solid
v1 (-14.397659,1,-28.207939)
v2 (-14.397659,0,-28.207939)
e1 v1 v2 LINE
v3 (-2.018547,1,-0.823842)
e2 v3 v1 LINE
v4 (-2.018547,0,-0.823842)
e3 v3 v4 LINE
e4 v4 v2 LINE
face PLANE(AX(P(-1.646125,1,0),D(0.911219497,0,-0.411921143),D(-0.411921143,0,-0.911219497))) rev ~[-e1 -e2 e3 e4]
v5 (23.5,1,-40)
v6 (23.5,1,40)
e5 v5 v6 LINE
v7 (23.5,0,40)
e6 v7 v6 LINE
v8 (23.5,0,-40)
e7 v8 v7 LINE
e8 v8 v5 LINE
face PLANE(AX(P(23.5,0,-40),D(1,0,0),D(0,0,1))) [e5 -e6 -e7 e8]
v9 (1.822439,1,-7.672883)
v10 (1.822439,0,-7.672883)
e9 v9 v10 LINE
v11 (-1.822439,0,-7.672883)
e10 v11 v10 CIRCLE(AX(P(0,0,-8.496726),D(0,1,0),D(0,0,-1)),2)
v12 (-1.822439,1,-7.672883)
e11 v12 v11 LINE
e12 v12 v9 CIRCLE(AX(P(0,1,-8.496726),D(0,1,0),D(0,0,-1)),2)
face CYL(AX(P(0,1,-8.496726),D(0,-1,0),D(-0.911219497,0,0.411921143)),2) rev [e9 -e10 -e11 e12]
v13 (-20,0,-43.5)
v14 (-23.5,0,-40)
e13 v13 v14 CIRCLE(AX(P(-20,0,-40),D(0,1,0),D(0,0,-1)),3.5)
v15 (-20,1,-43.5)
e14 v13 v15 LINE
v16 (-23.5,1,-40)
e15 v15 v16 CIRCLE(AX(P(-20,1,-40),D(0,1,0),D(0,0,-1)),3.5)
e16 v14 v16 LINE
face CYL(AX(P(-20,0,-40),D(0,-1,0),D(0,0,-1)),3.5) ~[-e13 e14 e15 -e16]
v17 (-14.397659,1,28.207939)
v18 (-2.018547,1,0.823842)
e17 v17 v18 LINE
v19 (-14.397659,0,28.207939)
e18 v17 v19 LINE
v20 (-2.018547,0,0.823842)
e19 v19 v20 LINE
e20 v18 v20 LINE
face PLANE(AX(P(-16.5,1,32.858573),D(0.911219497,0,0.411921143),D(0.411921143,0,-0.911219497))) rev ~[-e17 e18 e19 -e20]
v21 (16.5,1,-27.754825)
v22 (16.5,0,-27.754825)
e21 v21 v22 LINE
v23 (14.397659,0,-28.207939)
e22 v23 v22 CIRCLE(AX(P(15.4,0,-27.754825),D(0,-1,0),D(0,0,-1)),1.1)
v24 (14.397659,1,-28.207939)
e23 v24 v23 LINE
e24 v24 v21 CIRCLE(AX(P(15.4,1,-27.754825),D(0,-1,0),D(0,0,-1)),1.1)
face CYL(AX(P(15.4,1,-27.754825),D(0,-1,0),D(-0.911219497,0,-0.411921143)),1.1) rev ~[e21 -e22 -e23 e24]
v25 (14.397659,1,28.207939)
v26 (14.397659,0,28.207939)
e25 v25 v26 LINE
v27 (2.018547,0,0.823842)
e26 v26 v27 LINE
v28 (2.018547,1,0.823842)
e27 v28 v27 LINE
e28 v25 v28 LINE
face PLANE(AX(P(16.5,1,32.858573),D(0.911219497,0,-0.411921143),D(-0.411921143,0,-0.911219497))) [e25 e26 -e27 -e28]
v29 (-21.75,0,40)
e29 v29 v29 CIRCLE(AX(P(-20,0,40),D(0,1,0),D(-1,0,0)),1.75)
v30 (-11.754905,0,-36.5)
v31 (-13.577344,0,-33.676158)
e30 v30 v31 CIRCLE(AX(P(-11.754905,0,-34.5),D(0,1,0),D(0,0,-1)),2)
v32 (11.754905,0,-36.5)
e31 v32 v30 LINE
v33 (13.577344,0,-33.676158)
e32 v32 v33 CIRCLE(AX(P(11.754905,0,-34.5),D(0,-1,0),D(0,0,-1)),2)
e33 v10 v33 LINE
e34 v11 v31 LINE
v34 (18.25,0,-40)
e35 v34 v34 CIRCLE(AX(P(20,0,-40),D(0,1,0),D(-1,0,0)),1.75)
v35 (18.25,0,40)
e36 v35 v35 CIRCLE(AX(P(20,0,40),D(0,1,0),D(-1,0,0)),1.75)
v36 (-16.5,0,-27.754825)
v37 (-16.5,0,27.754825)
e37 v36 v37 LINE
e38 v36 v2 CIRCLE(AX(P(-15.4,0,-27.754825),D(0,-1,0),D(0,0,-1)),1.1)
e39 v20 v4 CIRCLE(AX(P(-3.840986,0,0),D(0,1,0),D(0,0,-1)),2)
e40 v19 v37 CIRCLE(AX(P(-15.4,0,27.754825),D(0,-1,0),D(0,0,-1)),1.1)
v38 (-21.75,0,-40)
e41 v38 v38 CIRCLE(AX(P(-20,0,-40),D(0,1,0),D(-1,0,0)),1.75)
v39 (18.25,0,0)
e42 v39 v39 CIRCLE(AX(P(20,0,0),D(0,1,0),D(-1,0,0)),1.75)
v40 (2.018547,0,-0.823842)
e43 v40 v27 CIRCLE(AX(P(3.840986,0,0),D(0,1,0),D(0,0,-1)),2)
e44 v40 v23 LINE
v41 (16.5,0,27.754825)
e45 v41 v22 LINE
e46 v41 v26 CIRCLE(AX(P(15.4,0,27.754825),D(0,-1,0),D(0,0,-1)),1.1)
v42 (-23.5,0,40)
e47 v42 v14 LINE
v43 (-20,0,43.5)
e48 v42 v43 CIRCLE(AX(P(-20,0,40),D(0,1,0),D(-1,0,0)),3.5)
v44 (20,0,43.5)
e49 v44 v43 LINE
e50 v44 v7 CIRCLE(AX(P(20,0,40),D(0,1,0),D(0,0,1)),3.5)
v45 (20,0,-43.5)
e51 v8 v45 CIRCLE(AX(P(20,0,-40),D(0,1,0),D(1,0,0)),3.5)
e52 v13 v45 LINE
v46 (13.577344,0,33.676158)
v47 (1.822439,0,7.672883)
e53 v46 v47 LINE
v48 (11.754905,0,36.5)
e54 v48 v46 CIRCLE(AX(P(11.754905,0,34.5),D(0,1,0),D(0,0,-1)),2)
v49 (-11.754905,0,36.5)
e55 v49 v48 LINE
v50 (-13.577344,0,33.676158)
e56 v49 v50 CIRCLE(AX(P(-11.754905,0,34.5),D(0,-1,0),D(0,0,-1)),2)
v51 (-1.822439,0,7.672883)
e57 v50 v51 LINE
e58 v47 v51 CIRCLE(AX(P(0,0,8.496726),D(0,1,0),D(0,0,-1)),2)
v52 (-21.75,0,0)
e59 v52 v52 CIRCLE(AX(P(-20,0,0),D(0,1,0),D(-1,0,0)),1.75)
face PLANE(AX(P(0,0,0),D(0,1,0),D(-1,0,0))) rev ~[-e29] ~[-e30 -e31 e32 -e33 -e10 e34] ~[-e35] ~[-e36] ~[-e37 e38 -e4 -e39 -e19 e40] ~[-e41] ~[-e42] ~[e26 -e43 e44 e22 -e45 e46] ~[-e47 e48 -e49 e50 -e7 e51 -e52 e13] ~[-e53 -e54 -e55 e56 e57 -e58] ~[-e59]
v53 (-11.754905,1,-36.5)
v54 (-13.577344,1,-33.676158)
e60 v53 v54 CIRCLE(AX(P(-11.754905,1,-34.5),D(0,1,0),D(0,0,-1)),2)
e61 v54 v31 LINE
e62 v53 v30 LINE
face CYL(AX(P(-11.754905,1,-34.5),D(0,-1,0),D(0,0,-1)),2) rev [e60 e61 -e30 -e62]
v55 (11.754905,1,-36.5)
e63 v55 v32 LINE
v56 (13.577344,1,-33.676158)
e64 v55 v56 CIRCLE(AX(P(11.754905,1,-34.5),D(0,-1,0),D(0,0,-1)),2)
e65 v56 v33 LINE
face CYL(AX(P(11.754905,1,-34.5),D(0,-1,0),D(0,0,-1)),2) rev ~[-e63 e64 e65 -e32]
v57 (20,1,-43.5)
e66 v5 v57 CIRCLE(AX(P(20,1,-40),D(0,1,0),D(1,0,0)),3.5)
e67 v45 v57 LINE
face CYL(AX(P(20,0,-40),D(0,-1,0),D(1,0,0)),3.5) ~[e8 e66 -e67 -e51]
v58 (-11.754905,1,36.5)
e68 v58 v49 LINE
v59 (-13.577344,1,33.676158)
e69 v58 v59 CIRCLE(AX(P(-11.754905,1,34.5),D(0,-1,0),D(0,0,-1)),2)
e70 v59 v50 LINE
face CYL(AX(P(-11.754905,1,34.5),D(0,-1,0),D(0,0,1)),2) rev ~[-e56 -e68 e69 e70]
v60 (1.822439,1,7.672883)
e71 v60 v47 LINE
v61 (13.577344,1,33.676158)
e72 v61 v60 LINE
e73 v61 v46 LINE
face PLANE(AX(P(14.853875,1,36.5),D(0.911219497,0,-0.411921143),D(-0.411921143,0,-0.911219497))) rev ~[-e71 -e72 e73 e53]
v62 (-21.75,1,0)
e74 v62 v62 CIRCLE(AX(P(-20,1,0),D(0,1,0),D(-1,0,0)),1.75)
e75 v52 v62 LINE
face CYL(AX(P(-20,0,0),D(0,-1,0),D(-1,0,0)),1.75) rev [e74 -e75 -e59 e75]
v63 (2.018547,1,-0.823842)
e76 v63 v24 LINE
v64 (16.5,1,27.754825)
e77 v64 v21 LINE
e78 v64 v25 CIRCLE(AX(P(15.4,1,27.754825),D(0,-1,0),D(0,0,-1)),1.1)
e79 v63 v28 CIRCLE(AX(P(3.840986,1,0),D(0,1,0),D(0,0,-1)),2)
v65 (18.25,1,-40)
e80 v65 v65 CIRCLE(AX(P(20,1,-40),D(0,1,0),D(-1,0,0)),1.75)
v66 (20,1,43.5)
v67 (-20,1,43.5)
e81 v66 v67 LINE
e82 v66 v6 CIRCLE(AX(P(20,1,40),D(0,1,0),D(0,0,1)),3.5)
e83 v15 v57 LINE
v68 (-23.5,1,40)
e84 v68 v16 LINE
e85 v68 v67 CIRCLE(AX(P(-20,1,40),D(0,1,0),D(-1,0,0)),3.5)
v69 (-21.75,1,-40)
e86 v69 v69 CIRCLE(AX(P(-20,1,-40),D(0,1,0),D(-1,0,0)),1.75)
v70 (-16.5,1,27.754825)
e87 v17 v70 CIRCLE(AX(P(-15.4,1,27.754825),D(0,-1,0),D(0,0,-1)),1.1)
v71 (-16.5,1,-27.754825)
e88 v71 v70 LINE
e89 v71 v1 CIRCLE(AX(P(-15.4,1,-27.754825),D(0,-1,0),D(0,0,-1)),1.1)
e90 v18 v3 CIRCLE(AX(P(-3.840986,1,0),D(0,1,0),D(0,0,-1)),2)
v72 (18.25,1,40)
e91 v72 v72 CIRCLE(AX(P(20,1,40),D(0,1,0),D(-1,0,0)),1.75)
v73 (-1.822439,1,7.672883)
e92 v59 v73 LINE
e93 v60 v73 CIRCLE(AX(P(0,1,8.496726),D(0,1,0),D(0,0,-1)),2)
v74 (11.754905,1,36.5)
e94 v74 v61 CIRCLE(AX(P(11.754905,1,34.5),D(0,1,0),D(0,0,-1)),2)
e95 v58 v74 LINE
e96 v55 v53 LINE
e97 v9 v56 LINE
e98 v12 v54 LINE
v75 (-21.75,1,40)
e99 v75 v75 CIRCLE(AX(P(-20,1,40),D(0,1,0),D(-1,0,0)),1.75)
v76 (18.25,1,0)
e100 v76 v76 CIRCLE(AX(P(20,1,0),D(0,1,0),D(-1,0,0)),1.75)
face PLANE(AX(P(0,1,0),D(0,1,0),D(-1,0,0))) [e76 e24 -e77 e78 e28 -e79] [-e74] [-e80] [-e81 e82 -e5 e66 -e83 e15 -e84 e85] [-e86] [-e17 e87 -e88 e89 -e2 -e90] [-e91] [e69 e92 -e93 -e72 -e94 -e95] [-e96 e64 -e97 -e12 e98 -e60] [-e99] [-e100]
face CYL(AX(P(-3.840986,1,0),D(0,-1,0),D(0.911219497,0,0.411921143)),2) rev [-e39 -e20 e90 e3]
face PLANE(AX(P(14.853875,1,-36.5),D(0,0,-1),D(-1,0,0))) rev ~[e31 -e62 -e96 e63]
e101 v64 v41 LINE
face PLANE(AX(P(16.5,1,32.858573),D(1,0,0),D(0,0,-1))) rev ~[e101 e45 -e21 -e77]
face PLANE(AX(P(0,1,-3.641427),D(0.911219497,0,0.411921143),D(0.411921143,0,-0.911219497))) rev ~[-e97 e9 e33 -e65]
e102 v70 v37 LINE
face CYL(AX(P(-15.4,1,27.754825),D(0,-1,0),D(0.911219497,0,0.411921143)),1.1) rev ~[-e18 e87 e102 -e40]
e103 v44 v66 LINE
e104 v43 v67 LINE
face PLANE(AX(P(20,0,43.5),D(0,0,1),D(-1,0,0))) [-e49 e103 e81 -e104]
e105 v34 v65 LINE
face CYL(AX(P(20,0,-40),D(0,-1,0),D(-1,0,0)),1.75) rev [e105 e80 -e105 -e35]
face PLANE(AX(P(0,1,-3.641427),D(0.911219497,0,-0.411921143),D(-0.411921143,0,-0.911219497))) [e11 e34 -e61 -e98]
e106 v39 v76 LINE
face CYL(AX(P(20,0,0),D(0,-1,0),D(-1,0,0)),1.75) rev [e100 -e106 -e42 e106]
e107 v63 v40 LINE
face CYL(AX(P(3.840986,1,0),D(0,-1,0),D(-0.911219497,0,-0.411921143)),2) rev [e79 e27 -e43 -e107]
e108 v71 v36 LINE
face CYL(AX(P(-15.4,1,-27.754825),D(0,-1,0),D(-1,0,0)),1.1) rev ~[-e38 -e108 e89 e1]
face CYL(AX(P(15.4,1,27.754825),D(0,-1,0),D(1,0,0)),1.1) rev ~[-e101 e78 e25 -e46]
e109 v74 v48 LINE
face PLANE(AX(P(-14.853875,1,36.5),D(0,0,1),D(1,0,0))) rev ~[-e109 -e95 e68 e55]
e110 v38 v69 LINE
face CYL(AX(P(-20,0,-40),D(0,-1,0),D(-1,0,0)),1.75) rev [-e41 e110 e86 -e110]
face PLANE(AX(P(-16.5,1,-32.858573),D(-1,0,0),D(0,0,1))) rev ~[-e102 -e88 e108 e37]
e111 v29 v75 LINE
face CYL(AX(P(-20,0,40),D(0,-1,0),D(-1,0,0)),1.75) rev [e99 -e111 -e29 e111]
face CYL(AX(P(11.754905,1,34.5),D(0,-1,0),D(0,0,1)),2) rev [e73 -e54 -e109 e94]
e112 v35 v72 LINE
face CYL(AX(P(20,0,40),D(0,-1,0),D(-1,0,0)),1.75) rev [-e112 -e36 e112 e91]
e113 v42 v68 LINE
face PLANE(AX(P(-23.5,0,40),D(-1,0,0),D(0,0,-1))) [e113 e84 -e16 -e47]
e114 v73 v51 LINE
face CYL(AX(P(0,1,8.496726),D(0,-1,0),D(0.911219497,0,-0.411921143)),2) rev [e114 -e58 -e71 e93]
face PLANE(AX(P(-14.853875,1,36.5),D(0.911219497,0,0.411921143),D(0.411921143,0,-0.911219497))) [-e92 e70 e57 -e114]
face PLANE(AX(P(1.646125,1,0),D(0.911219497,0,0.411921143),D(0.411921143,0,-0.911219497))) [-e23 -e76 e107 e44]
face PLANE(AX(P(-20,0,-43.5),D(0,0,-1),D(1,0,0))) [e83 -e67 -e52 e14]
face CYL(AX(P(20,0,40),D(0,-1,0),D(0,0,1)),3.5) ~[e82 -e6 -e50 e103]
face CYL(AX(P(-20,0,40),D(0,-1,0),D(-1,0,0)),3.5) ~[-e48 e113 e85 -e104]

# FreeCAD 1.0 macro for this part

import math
import FreeCAD as App
import Part
import Sketcher
Q = App.Units.Quantity


def edges_at(feature, points):
    """Names of the edges that pass closest to the given points."""
    edges = feature.Shape.Edges
    near = lambda p: min(range(len(edges)), key=lambda i: edges[i].distToShape(Part.Vertex(*p))[0])
    return sorted({f"Edge{near(p) + 1}" for p in points})


def add_polygon(sketch, points):
    """Adds a closed chain of lines whose ends are joined by coincident constraints."""
    first, n = sketch.GeometryCount, len(points)
    for a, b in zip(points, points[1:] + points[:1]):
        sketch.addGeometry(Part.LineSegment(App.Vector(*a, 0), App.Vector(*b, 0)), False)
    for i in range(n):
        sketch.addConstraint(Sketcher.Constraint("Coincident", first + i, 2, first + (i + 1) % n, 1))

doc = App.newDocument("Part")
body = doc.addObject("PartDesign::Body", "Body")

sketch1 = body.newObject("Sketcher::SketchObject", "Sketch")
sketch1.AttachmentSupport = (doc.getObject("XZ_Plane"), [""])
sketch1.MapMode = "FlatFace"
sketch1.addGeometry([
    Part.LineSegment(App.Vector(-20, 43.5, 0), App.Vector(20, 43.5, 0)),
    Part.ArcOfCircle(Part.Circle(App.Vector(20, 40, 0), App.Vector(0, 0, 1), 3.5), math.radians(0), math.radians(90)),
    Part.LineSegment(App.Vector(23.5, 40, 0), App.Vector(23.5, -40, 0)),
    Part.ArcOfCircle(Part.Circle(App.Vector(20, -40, 0), App.Vector(0, 0, 1), 3.5), math.radians(-90), math.radians(0)),
    Part.LineSegment(App.Vector(20, -43.5, 0), App.Vector(-20, -43.5, 0)),
    Part.ArcOfCircle(Part.Circle(App.Vector(-20, -40, 0), App.Vector(0, 0, 1), 3.5), math.radians(180), math.radians(270)),
    Part.LineSegment(App.Vector(-23.5, -40, 0), App.Vector(-23.5, 40, 0)),
    Part.ArcOfCircle(Part.Circle(App.Vector(-20, 40, 0), App.Vector(0, 0, 1), 3.5), math.radians(90), math.radians(180)),
    Part.Circle(App.Vector(20, -40, 0), App.Vector(0, 0, 1), 1.75),
    Part.Circle(App.Vector(-20, -40, 0), App.Vector(0, 0, 1), 1.75),
    Part.Circle(App.Vector(20, 0, 0), App.Vector(0, 0, 1), 1.75),
    Part.Circle(App.Vector(20, 40, 0), App.Vector(0, 0, 1), 1.75),
    Part.Circle(App.Vector(-20, 0, 0), App.Vector(0, 0, 1), 1.75),
    Part.Circle(App.Vector(-20, 40, 0), App.Vector(0, 0, 1), 1.75),
], False)
sketch1.addConstraint([
    Sketcher.Constraint("Tangent", 0, 2, 1, 2),
    Sketcher.Constraint("Tangent", 1, 1, 2, 1),
    Sketcher.Constraint("Tangent", 2, 2, 3, 2),
    Sketcher.Constraint("Tangent", 3, 1, 4, 1),
    Sketcher.Constraint("Tangent", 4, 2, 5, 2),
    Sketcher.Constraint("Tangent", 5, 1, 6, 1),
    Sketcher.Constraint("Tangent", 6, 2, 7, 2),
    Sketcher.Constraint("Tangent", 7, 1, 0, 1),
    Sketcher.Constraint("Horizontal", 0),
    Sketcher.Constraint("Vertical", 2),
    Sketcher.Constraint("Horizontal", 4),
    Sketcher.Constraint("Vertical", 6),
    Sketcher.Constraint("Coincident", 8, 3, 3, 3),
    Sketcher.Constraint("Coincident", 9, 3, 5, 3),
    Sketcher.Constraint("Coincident", 11, 3, 1, 3),
    Sketcher.Constraint("Coincident", 13, 3, 7, 3),
    Sketcher.Constraint("Equal", 1, 3),
    Sketcher.Constraint("Equal", 3, 5),
    Sketcher.Constraint("Equal", 5, 7),
    Sketcher.Constraint("Equal", 8, 9),
    Sketcher.Constraint("Equal", 9, 10),
    Sketcher.Constraint("Equal", 10, 11),
    Sketcher.Constraint("Equal", 11, 12),
    Sketcher.Constraint("Equal", 12, 13),
    Sketcher.Constraint("Symmetric", 1, 3, 5, 3, -1, 1),
    Sketcher.Constraint("Symmetric", 10, 3, 12, 3, -1, 1),
    Sketcher.Constraint("PointOnObject", 10, 3, -1),
    Sketcher.Constraint("Vertical", 8, 3, 10, 3),
    Sketcher.Constraint("Diameter", 8, Q("3.5 mm")),
    Sketcher.Constraint("Radius", 1, Q("3.5 mm")),
    Sketcher.Constraint("DistanceX", 0, 1, 0, 2, Q("40 mm")),
    Sketcher.Constraint("DistanceY", 2, 2, 2, 1, Q("80 mm")),
])
pad1 = body.newObject("PartDesign::Pad", "Pad")
pad1.Profile = sketch1
pad1.Length = 1
pad1.Reversed = True

sketch2 = body.newObject("Sketcher::SketchObject", "Sketch001")
sketch2.AttachmentSupport = (doc.getObject("XZ_Plane"), [""])
sketch2.MapMode = "FlatFace"
sketch2.AttachmentOffset = App.Placement(App.Vector(0, 0, -1), App.Rotation())
add_polygon(sketch2, [(0, 3.641427), (-14.853875, 36.5), (14.853875, 36.5)])
add_polygon(sketch2, [(-16.5, -32.858573), (-16.5, 32.858573), (-1.646125, 0)])
add_polygon(sketch2, [(1.646125, 0), (16.5, 32.858573), (16.5, -32.858573)])
add_polygon(sketch2, [(14.853875, -36.5), (-14.853875, -36.5), (0, -3.641427)])
sketch2.addConstraint([
    Sketcher.Constraint("Horizontal", 1),
    Sketcher.Constraint("Vertical", 3),
    Sketcher.Constraint("Vertical", 7),
    Sketcher.Constraint("Horizontal", 9),
    Sketcher.Constraint("Symmetric", 5, 2, 6, 2, -1, 1),
    Sketcher.Constraint("Symmetric", 4, 2, 8, 2, -1, 1),
    Sketcher.Constraint("Symmetric", 1, 2, 9, 2, -1, 1),
    Sketcher.Constraint("Symmetric", 2, 2, 10, 2, -1, 1),
    Sketcher.Constraint("PointOnObject", 2, 2, -2),
    Sketcher.Constraint("PointOnObject", 4, 2, -1),
    Sketcher.Constraint("Parallel", 0, 4),
    Sketcher.Constraint("Parallel", 2, 5),
    Sketcher.Constraint("Parallel", 4, 8),
    Sketcher.Constraint("Parallel", 8, 11),
    Sketcher.Constraint("Horizontal", 3, 2, 6, 2),
    Sketcher.Constraint("Equal", 2, 4),
    Sketcher.Constraint("DistanceX", 3, 2, 6, 2, Q("33 mm")),
    Sketcher.Constraint("DistanceY", -1, 1, 0, 2, Q("36.5 mm")),
    Sketcher.Constraint("Distance", 0, Q("36.06 mm")),
    Sketcher.Constraint("DistanceX", 1, 1, 1, 2, Q("29.7078 mm")),
])
pocket1 = body.newObject("PartDesign::Pocket", "Pocket")
pocket1.Profile = sketch2
pocket1.Type = "ThroughAll"
pocket1.Reversed = True
doc.recompute()

fillet = body.newObject("PartDesign::Fillet", "Fillet")
fillet.Base = (pocket1, edges_at(pocket1, [
    (-14.854, 0.5, 36.5),
    (14.854, 0.5, 36.5),
    (-14.854, 0.5, -36.5),
    (14.854, 0.5, -36.5),
    (1.646, 0.5, 0),
    (-1.646, 0.5, 0),
    (0, 0.5, 3.642),
    (0, 0.5, -3.642),
]))
fillet.Radius = 2
doc.recompute()

fillet2 = body.newObject("PartDesign::Fillet", "Fillet001")
fillet2.Base = (fillet, edges_at(fillet, [
    (16.5, 0.5, 32.858),
    (-16.5, 0.5, 32.858),
    (-16.5, 0.5, -32.858),
    (16.5, 0.5, -32.858),
]))
fillet2.Radius = 1.1

doc.recompute()
